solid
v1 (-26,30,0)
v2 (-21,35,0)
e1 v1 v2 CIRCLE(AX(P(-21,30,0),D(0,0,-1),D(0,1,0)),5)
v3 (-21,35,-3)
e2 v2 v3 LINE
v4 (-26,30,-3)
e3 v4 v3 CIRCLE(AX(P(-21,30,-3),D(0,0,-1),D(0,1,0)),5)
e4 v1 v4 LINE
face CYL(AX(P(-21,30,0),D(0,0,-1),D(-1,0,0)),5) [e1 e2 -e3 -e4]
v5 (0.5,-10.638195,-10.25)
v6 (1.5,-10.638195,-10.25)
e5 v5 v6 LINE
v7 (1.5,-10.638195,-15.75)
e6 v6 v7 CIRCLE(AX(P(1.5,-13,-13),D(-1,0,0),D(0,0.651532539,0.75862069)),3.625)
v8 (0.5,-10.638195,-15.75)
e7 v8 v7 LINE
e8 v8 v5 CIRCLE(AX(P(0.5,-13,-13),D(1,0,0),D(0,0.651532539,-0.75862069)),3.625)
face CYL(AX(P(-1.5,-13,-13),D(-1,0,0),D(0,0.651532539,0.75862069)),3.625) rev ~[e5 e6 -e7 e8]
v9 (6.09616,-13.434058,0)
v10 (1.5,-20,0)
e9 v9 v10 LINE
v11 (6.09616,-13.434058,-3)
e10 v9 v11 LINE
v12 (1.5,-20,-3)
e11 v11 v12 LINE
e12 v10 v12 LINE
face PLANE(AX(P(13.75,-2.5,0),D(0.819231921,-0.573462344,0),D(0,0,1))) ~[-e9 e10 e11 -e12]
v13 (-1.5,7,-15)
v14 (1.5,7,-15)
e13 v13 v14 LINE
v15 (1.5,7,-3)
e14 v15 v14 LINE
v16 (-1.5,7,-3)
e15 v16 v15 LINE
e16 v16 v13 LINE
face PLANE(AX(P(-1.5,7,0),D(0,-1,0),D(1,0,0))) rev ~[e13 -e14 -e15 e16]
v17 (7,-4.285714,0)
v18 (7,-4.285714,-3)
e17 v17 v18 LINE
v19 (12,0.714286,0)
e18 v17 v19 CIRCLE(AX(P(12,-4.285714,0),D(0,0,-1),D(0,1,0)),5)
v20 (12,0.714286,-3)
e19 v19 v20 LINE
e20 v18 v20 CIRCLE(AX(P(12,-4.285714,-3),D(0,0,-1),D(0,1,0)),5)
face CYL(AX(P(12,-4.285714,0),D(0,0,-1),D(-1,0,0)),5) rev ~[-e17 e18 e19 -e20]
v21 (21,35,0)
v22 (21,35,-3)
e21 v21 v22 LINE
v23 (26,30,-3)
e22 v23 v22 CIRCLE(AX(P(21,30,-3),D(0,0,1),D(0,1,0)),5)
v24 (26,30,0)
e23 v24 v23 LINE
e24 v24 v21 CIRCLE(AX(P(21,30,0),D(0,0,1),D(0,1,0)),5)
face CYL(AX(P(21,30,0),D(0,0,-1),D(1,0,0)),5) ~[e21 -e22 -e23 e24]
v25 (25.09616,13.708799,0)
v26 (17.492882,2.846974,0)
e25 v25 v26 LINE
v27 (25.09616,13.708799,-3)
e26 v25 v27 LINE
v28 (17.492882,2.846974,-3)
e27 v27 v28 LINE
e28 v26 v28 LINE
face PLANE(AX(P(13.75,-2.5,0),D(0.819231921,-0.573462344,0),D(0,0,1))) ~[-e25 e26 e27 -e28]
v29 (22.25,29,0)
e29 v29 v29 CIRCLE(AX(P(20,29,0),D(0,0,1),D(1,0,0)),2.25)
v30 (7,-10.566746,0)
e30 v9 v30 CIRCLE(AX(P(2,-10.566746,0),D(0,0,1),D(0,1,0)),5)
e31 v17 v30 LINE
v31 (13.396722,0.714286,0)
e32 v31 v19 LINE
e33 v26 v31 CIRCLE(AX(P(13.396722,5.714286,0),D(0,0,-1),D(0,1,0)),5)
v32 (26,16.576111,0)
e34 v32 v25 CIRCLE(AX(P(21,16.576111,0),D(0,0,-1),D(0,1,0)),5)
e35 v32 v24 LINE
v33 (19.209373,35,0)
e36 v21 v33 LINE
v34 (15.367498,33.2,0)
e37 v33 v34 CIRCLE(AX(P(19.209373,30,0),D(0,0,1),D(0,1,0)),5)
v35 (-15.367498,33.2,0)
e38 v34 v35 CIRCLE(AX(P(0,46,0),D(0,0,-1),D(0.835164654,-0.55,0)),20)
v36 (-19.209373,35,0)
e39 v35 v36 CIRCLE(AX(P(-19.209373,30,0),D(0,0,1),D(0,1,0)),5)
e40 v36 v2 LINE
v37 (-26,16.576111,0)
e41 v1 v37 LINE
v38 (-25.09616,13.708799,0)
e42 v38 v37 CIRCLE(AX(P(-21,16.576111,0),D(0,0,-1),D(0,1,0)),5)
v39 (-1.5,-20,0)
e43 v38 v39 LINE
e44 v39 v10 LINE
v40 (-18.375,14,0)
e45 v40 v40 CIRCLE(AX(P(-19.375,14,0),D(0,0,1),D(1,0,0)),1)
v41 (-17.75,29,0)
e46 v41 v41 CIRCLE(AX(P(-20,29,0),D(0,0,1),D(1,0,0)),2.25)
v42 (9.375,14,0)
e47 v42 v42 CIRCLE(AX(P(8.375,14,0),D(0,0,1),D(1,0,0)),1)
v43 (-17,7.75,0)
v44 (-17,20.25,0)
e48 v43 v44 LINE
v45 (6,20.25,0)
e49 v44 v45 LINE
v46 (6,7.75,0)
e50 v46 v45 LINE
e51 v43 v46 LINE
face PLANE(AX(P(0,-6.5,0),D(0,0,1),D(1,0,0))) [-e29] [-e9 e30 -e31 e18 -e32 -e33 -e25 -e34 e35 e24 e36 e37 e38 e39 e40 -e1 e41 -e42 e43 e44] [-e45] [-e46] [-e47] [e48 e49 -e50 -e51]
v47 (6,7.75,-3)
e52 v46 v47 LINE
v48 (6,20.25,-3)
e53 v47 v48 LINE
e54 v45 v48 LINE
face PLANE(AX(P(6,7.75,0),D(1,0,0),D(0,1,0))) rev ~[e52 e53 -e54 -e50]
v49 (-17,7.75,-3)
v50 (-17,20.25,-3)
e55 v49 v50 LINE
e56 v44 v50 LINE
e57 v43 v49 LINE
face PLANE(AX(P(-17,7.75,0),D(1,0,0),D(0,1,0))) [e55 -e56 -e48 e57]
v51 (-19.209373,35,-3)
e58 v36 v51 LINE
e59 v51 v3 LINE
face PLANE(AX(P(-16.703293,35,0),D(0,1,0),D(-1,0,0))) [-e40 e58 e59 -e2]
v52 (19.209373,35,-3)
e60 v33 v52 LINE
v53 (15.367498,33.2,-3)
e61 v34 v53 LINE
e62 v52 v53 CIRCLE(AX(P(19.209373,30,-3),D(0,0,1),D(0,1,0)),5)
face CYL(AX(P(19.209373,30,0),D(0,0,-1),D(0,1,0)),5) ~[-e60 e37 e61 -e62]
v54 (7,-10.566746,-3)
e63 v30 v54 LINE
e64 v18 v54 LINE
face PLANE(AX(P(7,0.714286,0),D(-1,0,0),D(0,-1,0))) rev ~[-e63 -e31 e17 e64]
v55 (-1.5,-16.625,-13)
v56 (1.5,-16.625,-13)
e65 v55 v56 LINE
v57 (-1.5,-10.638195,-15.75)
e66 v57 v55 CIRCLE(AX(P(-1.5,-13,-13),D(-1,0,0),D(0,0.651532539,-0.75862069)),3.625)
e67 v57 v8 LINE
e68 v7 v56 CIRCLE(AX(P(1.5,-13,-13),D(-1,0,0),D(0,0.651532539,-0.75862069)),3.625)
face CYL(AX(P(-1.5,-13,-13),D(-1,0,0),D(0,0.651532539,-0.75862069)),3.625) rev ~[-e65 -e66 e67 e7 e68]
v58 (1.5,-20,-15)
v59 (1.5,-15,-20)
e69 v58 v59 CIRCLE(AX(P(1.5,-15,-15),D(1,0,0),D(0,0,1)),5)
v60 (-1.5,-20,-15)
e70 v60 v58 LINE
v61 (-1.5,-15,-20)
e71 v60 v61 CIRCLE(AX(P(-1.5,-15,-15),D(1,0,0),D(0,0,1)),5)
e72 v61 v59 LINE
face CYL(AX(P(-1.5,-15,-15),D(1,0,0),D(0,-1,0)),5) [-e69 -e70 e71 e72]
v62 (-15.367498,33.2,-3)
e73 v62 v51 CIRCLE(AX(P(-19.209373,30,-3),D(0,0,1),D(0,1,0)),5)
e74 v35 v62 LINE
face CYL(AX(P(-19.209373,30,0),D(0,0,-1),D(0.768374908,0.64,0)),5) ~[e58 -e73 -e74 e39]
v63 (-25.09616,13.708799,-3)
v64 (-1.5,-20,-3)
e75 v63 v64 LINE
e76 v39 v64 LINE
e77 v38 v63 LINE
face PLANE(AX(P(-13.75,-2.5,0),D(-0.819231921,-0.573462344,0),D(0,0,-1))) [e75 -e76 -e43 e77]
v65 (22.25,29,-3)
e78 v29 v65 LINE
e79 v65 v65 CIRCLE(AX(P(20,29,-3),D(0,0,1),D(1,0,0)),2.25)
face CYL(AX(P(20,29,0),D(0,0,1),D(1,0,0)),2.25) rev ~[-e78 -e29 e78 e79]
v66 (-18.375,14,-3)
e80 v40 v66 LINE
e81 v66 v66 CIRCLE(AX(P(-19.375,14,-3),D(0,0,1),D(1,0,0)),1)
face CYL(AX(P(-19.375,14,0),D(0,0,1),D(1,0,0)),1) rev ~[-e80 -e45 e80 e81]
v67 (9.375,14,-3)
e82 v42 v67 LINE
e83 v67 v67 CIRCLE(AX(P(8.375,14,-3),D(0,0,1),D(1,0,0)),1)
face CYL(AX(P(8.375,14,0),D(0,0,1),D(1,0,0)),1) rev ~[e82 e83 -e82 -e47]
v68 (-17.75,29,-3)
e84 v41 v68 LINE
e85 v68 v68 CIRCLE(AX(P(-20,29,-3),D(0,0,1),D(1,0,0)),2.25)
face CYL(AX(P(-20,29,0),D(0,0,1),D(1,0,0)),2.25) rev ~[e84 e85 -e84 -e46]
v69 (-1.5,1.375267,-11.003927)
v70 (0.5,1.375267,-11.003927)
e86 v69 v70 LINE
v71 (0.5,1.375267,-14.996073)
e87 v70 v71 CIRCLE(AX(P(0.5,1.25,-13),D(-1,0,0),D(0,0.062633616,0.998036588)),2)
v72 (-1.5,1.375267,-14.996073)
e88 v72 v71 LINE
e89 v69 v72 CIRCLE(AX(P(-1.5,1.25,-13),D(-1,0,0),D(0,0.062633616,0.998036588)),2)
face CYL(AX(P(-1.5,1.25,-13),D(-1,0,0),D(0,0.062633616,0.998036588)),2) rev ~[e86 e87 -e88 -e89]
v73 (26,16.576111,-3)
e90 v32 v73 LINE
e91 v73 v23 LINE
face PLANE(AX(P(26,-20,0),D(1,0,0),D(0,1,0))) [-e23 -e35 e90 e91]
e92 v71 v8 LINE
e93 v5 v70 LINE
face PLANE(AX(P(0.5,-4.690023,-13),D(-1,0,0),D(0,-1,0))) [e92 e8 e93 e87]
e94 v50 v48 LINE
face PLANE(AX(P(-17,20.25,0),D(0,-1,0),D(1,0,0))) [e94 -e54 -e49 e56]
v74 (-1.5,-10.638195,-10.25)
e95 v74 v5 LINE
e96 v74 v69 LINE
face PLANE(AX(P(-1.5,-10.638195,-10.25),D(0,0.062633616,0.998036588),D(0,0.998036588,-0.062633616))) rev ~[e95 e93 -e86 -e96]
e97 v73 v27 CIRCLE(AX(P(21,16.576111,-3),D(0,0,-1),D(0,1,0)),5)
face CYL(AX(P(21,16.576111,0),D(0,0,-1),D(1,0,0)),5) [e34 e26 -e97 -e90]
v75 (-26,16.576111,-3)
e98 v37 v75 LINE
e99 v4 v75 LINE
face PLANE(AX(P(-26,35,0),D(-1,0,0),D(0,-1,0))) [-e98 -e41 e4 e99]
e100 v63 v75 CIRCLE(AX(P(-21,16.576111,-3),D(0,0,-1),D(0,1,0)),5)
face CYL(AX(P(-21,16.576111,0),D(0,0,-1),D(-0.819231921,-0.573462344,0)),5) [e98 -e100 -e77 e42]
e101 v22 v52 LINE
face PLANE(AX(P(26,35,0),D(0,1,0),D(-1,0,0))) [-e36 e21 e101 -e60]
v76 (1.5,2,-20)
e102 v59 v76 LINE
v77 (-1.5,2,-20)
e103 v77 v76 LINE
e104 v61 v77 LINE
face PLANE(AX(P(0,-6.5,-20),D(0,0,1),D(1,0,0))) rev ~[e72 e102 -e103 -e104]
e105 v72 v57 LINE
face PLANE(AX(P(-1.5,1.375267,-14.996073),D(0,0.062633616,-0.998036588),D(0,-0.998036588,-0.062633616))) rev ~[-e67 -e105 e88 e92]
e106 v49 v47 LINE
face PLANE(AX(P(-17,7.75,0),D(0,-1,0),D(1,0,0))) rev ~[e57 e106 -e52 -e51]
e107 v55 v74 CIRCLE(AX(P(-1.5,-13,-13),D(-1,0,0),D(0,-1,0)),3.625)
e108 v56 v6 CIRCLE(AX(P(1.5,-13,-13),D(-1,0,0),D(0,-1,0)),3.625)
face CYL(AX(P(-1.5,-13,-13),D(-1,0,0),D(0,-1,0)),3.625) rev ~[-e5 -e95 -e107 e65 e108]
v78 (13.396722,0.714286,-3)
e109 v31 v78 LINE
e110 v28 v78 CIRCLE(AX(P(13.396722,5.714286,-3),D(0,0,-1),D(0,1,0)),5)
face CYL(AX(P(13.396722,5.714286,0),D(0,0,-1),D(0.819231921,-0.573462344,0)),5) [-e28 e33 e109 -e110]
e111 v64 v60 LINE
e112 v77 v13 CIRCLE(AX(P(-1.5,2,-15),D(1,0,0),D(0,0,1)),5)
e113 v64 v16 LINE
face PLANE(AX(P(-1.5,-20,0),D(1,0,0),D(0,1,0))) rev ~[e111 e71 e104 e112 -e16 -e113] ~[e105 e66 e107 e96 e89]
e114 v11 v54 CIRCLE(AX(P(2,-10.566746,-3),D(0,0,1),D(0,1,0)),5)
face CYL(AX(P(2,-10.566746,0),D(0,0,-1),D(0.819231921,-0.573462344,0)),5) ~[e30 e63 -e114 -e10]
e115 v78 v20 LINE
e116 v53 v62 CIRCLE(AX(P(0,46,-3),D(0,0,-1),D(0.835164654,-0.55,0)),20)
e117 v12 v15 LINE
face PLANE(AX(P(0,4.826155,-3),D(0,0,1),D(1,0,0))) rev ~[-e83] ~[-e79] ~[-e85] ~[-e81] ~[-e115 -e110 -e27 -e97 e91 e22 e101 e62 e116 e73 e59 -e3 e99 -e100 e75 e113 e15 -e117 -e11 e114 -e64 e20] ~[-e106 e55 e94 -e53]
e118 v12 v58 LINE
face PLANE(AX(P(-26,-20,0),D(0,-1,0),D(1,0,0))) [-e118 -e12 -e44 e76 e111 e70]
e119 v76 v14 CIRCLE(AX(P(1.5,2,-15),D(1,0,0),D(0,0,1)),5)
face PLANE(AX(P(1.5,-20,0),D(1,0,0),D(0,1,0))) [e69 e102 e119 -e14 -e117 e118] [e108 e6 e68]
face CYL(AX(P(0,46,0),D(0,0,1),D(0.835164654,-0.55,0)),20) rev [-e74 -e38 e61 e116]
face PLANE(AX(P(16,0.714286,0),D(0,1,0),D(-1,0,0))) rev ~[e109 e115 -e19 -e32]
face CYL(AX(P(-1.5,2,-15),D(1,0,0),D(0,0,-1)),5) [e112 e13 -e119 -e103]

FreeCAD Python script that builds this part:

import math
import FreeCAD as App
import Part
import Sketcher

V = App.Vector


def edges_at(feature, points):
    """Names of the edges that pass closest to the given points."""
    edges = feature.Shape.Edges
    near = lambda p: min(range(len(edges)), key=lambda i: edges[i].distToShape(Part.Vertex(*p))[0])
    return sorted({f"Edge{near(p) + 1}" for p in points})


def add_polygon(sketch, points):
    """Adds a closed chain of lines whose ends are joined by coincident constraints."""
    first, n = sketch.GeometryCount, len(points)
    for a, b in zip(points, points[1:] + points[:1]):
        sketch.addGeometry(Part.LineSegment(App.Vector(*a, 0), App.Vector(*b, 0)), False)
    for i in range(n):
        sketch.addConstraint(Sketcher.Constraint("Coincident", first + i, 2, first + (i + 1) % n, 1))

doc = App.newDocument("Part")
body = doc.addObject("PartDesign::Body", "Body")

sketch1 = body.newObject("Sketcher::SketchObject", "Sketch")
sketch1.AttachmentSupport = (doc.getObject("XY_Plane"), [""])
sketch1.MapMode = "FlatFace"
sketch1.addGeometry(Part.ArcOfCircle(Part.Circle(V(0, 46, 0), V(0, 0, 1), 20), math.radians(-147), math.radians(-33)), False)
sketch1.addGeometry(Part.LineSegment(V(-16.7, 35, 0), V(-26, 35, 0)), False)
sketch1.addGeometry(Part.LineSegment(V(-26, 35, 0), V(-26, -20, 0)), False)
sketch1.addGeometry(Part.LineSegment(V(-26, -20, 0), V(26, -20, 0)), False)
sketch1.addGeometry(Part.LineSegment(V(26, -20, 0), V(26, 35, 0)), False)
sketch1.addGeometry(Part.LineSegment(V(26, 35, 0), V(16.7, 35, 0)), False)
sketch1.addGeometry(Part.Circle(V(-19.4, 14, 0), V(0, 0, 1), 1), False)
add_polygon(sketch1, [(6, 7.8), (-17, 7.8), (-17, 20.2), (6, 20.2)])
sketch1.addGeometry(Part.Circle(V(8.4, 14, 0), V(0, 0, 1), 1), False)
sketch1.addGeometry(Part.Circle(V(-20, 29, 0), V(0, 0, 1), 2.2), False)
sketch1.addGeometry(Part.Circle(V(20, 29, 0), V(0, 0, 1), 2.2), False)
sketch1.addConstraint(Sketcher.Constraint("Coincident", 0, 1, 1, 1))
sketch1.addConstraint(Sketcher.Constraint("Coincident", 1, 2, 2, 1))
sketch1.addConstraint(Sketcher.Constraint("Coincident", 2, 2, 3, 1))
sketch1.addConstraint(Sketcher.Constraint("Coincident", 3, 2, 4, 1))
sketch1.addConstraint(Sketcher.Constraint("Coincident", 4, 2, 5, 1))
sketch1.addConstraint(Sketcher.Constraint("Coincident", 5, 2, 0, 2))
sketch1.addConstraint(Sketcher.Constraint("Horizontal", 1))
sketch1.addConstraint(Sketcher.Constraint("Vertical", 2))
sketch1.addConstraint(Sketcher.Constraint("Horizontal", 3))
sketch1.addConstraint(Sketcher.Constraint("Vertical", 4))
sketch1.addConstraint(Sketcher.Constraint("Horizontal", 5))
sketch1.addConstraint(Sketcher.Constraint("Horizontal", 7))
sketch1.addConstraint(Sketcher.Constraint("Vertical", 8))
sketch1.addConstraint(Sketcher.Constraint("Horizontal", 9))
sketch1.addConstraint(Sketcher.Constraint("Vertical", 10))
sketch1.addConstraint(Sketcher.Constraint("Equal", 6, 11))
sketch1.addConstraint(Sketcher.Constraint("Equal", 12, 13))
sketch1.addConstraint(Sketcher.Constraint("Symmetric", 12, 3, 13, 3, -2))
sketch1.addConstraint(Sketcher.Constraint("Symmetric", 1, 2, 4, 2, -2))
sketch1.addConstraint(Sketcher.Constraint("PointOnObject", 0, 3, -2))
sketch1.addConstraint(Sketcher.Constraint("Horizontal", 6, 3, 11, 3))
sketch1.addConstraint(Sketcher.Constraint("Diameter", 6, 2.0))
sketch1.addConstraint(Sketcher.Constraint("Radius", 0, 20.0))
sketch1.addConstraint(Sketcher.Constraint("Diameter", 12, 4.5))
sketch1.addConstraint(Sketcher.Constraint("DistanceX", 3, 1, 3, 2, 52.0))
sketch1.addConstraint(Sketcher.Constraint("DistanceX", 7, 2, 7, 1, 23.0))
sketch1.addConstraint(Sketcher.Constraint("DistanceY", 2, 2, 2, 1, 55.0))
sketch1.addConstraint(Sketcher.Constraint("DistanceY", 8, 1, 8, 2, 12.5))
sketch1.addConstraint(Sketcher.Constraint("DistanceY", -1, 1, 0, 3, 46.0))
sketch1.addConstraint(Sketcher.Constraint("DistanceY", -1, 1, 6, 3, 14.0))
sketch1.addConstraint(Sketcher.Constraint("DistanceX", 12, 3, -1, 1, 20.0))
sketch1.addConstraint(Sketcher.Constraint("DistanceY", -1, 1, 12, 3, 29.0))
sketch1.addConstraint(Sketcher.Constraint("DistanceY", -1, 1, 0, 1, 35.0))
sketch1.addConstraint(Sketcher.Constraint("DistanceX", 7, 2, -1, 1, 17.0))
sketch1.addConstraint(Sketcher.Constraint("DistanceY", -1, 1, 7, 2, 7.75))
sketch1.addConstraint(Sketcher.Constraint("DistanceX", 6, 3, 11, 3, 27.75))
sketch1.addConstraint(Sketcher.Constraint("DistanceX", 6, 3, -1, 1, 19.375))
pad1 = body.newObject("PartDesign::Pad", "Pad")
pad1.Profile = sketch1
pad1.Length = 3
pad1.Reversed = True

sketch2 = body.newObject("Sketcher::SketchObject", "Sketch001")
sketch2.AttachmentSupport = (doc.getObject("XY_Plane"), [""])
sketch2.MapMode = "FlatFace"
add_polygon(sketch2, [(-1.5, 7), (-1.5, -20), (1.5, -20), (1.5, 7)])
sketch2.addConstraint(Sketcher.Constraint("Vertical", 0))
sketch2.addConstraint(Sketcher.Constraint("Horizontal", 1))
sketch2.addConstraint(Sketcher.Constraint("Vertical", 2))
sketch2.addConstraint(Sketcher.Constraint("Horizontal", 3))
sketch2.addConstraint(Sketcher.Constraint("DistanceX", 1, 1, 1, 2, 3.0))
sketch2.addConstraint(Sketcher.Constraint("DistanceY", 0, 2, 0, 1, 27.0))
sketch2.addConstraint(Sketcher.Constraint("DistanceY", 0, 2, -1, 1, 20.0))
sketch2.addConstraint(Sketcher.Constraint("DistanceX", 0, 2, -1, 1, 1.5))
pad2 = body.newObject("PartDesign::Pad", "Pad001")
pad2.Profile = sketch2
pad2.Length = 20
pad2.Reversed = True
doc.recompute()

chamfer = body.newObject("PartDesign::Chamfer", "Chamfer")
chamfer.Base = (pad2, edges_at(pad2, [(-26, -20, -1.5)]))
chamfer.ChamferType = "Two distances"
chamfer.Size = 35
chamfer.Size2 = 24.5
doc.recompute()

chamfer2 = body.newObject("PartDesign::Chamfer", "Chamfer001")
chamfer2.Base = (chamfer, edges_at(chamfer, [(26, -20, -1.5)]))
chamfer2.ChamferType = "Two distances"
chamfer2.Size = 35
chamfer2.Size2 = 24.5
doc.recompute()

fillet = body.newObject("PartDesign::Fillet", "Fillet")
fillet.Base = (chamfer2, edges_at(chamfer2, [(-26, 35, -1.5), (26, 35, -1.5)]))
fillet.Radius = 5

sketch3 = body.newObject("Sketcher::SketchObject", "Sketch002")
sketch3.AttachmentSupport = (doc.getObject("YZ_Plane"), [""])
sketch3.MapMode = "FlatFace"
sketch3.AttachmentOffset = App.Placement(V(0, 0, -1.5), App.Rotation())
sketch3.addGeometry(Part.ArcOfCircle(Part.Circle(V(-13, -13, 0), V(0, 0, 1), 3.6), math.radians(180), math.radians(311)), False)
sketch3.addGeometry(Part.ArcOfCircle(Part.Circle(V(-13, -13, 0), V(0, 0, 1), 3.6), math.radians(49), math.radians(180)), False)
sketch3.addGeometry(Part.ArcOfCircle(Part.Circle(V(-13, -13, 0), V(0, 0, 1), 3.6), math.radians(-49), math.radians(49)), False)
sketch3.addConstraint(Sketcher.Constraint("Tangent", 0, 1, 1, 2))
sketch3.addConstraint(Sketcher.Constraint("Tangent", 1, 1, 2, 2))
sketch3.addConstraint(Sketcher.Constraint("Tangent", 2, 1, 0, 2))
sketch3.addConstraint(Sketcher.Constraint("Horizontal", 2, 3, 0, 1))
sketch3.addConstraint(Sketcher.Constraint("Vertical", 1, 1, 2, 1))
sketch3.addConstraint(Sketcher.Constraint("DistanceX", 0, 3, -1, 1, 13.0))
sketch3.addConstraint(Sketcher.Constraint("DistanceY", 0, 3, -1, 1, 13.0))
sketch3.addConstraint(Sketcher.Constraint("Radius", 0, 3.625))
sketch3.addConstraint(Sketcher.Constraint("DistanceY", 2, 1, 1, 1, 5.5))
pocket1 = body.newObject("PartDesign::Pocket", "Pocket")
pocket1.Profile = sketch3
pocket1.Length = 25
pocket1.Reversed = True

sketch4 = body.newObject("Sketcher::SketchObject", "Sketch003")
sketch4.AttachmentSupport = (doc.getObject("YZ_Plane"), [""])
sketch4.MapMode = "FlatFace"
sketch4.AttachmentOffset = App.Placement(V(0, 0, -1.5), App.Rotation())
sketch4.addGeometry(Part.ArcOfCircle(Part.Circle(V(-13, -13, 0), V(0, 0, 1), 3.6), math.radians(-49), math.radians(49)), False)
sketch4.addGeometry(Part.LineSegment(V(-10.6, -10.2, 0), V(1.4, -11, 0)), False)
sketch4.addGeometry(Part.ArcOfCircle(Part.Circle(V(1.2, -13, 0), V(0, 0, 1), 2), math.radians(-86), math.radians(86)), False)
sketch4.addGeometry(Part.LineSegment(V(1.4, -15, 0), V(-10.6, -15.8, 0)), False)
sketch4.addConstraint(Sketcher.Constraint("Coincident", 0, 2, 1, 1))
sketch4.addConstraint(Sketcher.Constraint("Tangent", 1, 2, 2, 2))
sketch4.addConstraint(Sketcher.Constraint("Tangent", 2, 1, 3, 1))
sketch4.addConstraint(Sketcher.Constraint("Coincident", 3, 2, 0, 1))
sketch4.addConstraint(Sketcher.Constraint("Horizontal", 0, 3, 2, 3))
sketch4.addConstraint(Sketcher.Constraint("Vertical", 1, 2, 2, 1))
sketch4.addConstraint(Sketcher.Constraint("Radius", 2, 2.0))
sketch4.addConstraint(Sketcher.Constraint("DistanceX", 0, 3, -1, 1, 13.0))
sketch4.addConstraint(Sketcher.Constraint("DistanceY", 0, 3, -1, 1, 13.0))
sketch4.addConstraint(Sketcher.Constraint("Radius", 0, 3.625))
sketch4.addConstraint(Sketcher.Constraint("DistanceY", 3, 2, 0, 2, 5.5))
sketch4.addConstraint(Sketcher.Constraint("DistanceX", -1, 1, 2, 3, 1.25))
pocket2 = body.newObject("PartDesign::Pocket", "Pocket001")
pocket2.Profile = sketch4
pocket2.Length = 2
pocket2.Reversed = True
doc.recompute()

fillet2 = body.newObject("PartDesign::Fillet", "Fillet001")
fillet2.Base = (pocket2, edges_at(pocket2, [(-26, 15, -1.5), (26, 15, -1.5)]))
fillet2.Radius = 5
doc.recompute()

fillet3 = body.newObject("PartDesign::Fillet", "Fillet002")
fillet3.Base = (fillet2, edges_at(fillet2, [(-16.703, 35, -1.5), (16.703, 35, -1.5)]))
fillet3.Radius = 5
doc.recompute()

fillet4 = body.newObject("PartDesign::Fillet", "Fillet003")
fillet4.Base = (fillet3, edges_at(fillet3, [(0, -20, -20), (0, 7, -20)]))
fillet4.Radius = 5

sketch5 = body.newObject("Sketcher::SketchObject", "Sketch004")
sketch5.AttachmentSupport = (doc.getObject("XY_Plane"), [""])
sketch5.MapMode = "FlatFace"
add_polygon(sketch5, [(7, 1), (7, -12), (16, 1)])
sketch5.addConstraint(Sketcher.Constraint("Vertical", 0))
sketch5.addConstraint(Sketcher.Constraint("Horizontal", 2))
sketch5.addConstraint(Sketcher.Constraint("DistanceX", 2, 2, 2, 1, 9.0))
sketch5.addConstraint(Sketcher.Constraint("DistanceX", -1, 1, 0, 2, 7.0))
sketch5.addConstraint(Sketcher.Constraint("DistanceY", 0, 2, 0, 1, 12.857143))
sketch5.addConstraint(Sketcher.Constraint("DistanceY", 0, 2, -1, 1, 12.142857))
pocket3 = body.newObject("PartDesign::Pocket", "Pocket002")
pocket3.Profile = sketch5
pocket3.Length = 25
doc.recompute()

fillet5 = body.newObject("PartDesign::Fillet", "Fillet004")
fillet5.Base = (pocket3, edges_at(pocket3, [(16, 0.714, -1.5), (7, 0.714, -1.5), (7, -12.143, -1.5)]))
fillet5.Radius = 5

doc.recompute()
